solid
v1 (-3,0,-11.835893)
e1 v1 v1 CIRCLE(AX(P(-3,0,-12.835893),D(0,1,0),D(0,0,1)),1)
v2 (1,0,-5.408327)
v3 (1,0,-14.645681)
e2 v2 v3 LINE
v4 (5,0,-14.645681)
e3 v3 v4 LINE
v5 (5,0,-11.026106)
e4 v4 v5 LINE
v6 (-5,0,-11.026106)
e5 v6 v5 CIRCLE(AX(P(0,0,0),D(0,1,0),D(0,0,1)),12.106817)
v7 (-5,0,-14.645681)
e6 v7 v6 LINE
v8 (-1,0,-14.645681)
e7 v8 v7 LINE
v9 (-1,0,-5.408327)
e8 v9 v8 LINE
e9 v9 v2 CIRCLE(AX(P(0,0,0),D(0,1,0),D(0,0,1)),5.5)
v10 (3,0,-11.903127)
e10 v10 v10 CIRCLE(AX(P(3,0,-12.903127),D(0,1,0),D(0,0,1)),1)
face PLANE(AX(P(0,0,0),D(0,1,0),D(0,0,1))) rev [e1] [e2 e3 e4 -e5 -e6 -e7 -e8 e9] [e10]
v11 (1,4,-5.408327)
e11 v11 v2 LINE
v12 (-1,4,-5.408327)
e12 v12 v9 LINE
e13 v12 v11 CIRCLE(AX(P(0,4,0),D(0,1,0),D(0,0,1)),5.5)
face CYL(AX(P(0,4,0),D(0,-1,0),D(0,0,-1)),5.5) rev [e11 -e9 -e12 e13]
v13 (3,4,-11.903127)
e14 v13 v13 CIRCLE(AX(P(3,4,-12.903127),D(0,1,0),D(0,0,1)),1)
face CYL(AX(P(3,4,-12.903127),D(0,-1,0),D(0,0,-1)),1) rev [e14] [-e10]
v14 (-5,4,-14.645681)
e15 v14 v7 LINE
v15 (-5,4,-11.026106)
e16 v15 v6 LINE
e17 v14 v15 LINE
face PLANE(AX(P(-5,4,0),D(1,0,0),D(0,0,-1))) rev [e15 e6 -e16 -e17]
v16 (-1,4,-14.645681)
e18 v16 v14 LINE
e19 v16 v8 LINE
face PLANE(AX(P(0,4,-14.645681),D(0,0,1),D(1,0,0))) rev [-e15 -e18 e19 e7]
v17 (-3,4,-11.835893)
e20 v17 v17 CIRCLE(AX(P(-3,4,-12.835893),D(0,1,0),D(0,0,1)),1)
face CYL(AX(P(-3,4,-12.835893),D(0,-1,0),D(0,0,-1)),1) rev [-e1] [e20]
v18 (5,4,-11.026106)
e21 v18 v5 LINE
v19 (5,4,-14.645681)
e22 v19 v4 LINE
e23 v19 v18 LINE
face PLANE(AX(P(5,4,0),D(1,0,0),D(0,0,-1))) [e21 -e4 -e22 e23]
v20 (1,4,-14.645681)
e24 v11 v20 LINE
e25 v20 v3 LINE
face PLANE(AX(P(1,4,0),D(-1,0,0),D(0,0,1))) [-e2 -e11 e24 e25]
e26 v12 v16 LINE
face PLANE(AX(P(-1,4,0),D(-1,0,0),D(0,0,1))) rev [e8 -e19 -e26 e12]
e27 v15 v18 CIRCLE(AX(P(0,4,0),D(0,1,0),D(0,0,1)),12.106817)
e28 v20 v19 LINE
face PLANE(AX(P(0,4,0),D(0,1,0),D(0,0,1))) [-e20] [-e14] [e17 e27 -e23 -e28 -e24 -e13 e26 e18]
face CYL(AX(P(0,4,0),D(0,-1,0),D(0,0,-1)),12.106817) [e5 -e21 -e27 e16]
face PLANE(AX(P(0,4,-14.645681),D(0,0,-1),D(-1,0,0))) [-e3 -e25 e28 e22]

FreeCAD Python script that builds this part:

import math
import FreeCAD as App
import Part
import Sketcher
Q = App.Units.Quantity

doc = App.newDocument("Part")
params = doc.addObject("Spreadsheet::Sheet", "Params")
for row, (alias, value) in enumerate([
    ("sketch1_diameter", "2 mm"),
    ("sketch1_radius", "5.5 mm"),
    ("sketch1_width", "4 mm"),
    ("pad1_length", "4 mm"),
], start=1):
    params.set(f"A{row}", alias)
    params.set(f"B{row}", "=" + value)
    params.setAlias(f"B{row}", alias)

body = doc.addObject("PartDesign::Body", "Body")

# Sketch on XZ plane
sketch1 = body.newObject("Sketcher::SketchObject", "Sketch")
sketch1.AttachmentSupport = (doc.getObject("XZ_Plane"), [""])
sketch1.MapMode = "FlatFace"
sketch1.addGeometry([
    Part.LineSegment(App.Vector(-5, -14.6, 0), App.Vector(-5, -11, 0)),  # 0
    Part.ArcOfCircle(Part.Circle(App.Vector(0, 0, 0), App.Vector(0, 0, 1), 12.1), math.radians(-66), math.radians(246)),  # 1
    Part.LineSegment(App.Vector(5, -11, 0), App.Vector(5, -14.6, 0)),  # 2
    Part.LineSegment(App.Vector(5, -14.6, 0), App.Vector(1, -14.6, 0)),  # 3
    Part.LineSegment(App.Vector(1, -14.6, 0), App.Vector(1, -5.4, 0)),  # 4
    Part.ArcOfCircle(Part.Circle(App.Vector(0, 0, 0), App.Vector(0, 0, 1), 5.5), math.radians(-80), math.radians(260)),  # 5
    Part.LineSegment(App.Vector(-1, -5.4, 0), App.Vector(-1, -14.6, 0)),  # 6
    Part.LineSegment(App.Vector(-1, -14.6, 0), App.Vector(-5, -14.6, 0)),  # 7
    Part.Circle(App.Vector(-3, -12.8, 0), App.Vector(0, 0, 1), 1),  # 8
    Part.Circle(App.Vector(3, -12.9, 0), App.Vector(0, 0, 1), 1),  # 9
], False)
sketch1.addConstraint([
    Sketcher.Constraint("Coincident", 0, 2, 1, 2),
    Sketcher.Constraint("Coincident", 1, 1, 2, 1),
    Sketcher.Constraint("Coincident", 2, 2, 3, 1),
    Sketcher.Constraint("Coincident", 3, 2, 4, 1),
    Sketcher.Constraint("Coincident", 4, 2, 5, 1),
    Sketcher.Constraint("Coincident", 5, 2, 6, 1),
    Sketcher.Constraint("Coincident", 6, 2, 7, 1),
    Sketcher.Constraint("Coincident", 7, 2, 0, 1),
    Sketcher.Constraint("Vertical", 0),
    Sketcher.Constraint("Vertical", 2),
    Sketcher.Constraint("Horizontal", 3),
    Sketcher.Constraint("Vertical", 4),
    Sketcher.Constraint("Vertical", 6),
    Sketcher.Constraint("Horizontal", 7),
    Sketcher.Constraint("Coincident", 1, 3, -1, 1),
    Sketcher.Constraint("Coincident", 5, 3, -1, 1),
    Sketcher.Constraint("Equal", 8, 9),
    Sketcher.Constraint("Symmetric", 3, 2, 6, 2, -2),
    Sketcher.Constraint("Horizontal", 0, 2, 1, 1),
    Sketcher.Constraint("Diameter", 8, Q("2 mm")),
    Sketcher.Constraint("Radius", 5, Q("5.5 mm")),
    Sketcher.Constraint("DistanceX", 3, 2, 3, 1, Q("4 mm")),
    Sketcher.Constraint("DistanceX", 8, 3, -1, 1, Q("3 mm")),
    Sketcher.Constraint("DistanceX", -1, 1, 9, 3, Q("3 mm")),
    Sketcher.Constraint("DistanceX", 0, 2, -1, 1, Q("5 mm")),
    Sketcher.Constraint("Radius", 1, Q("12.106817 mm")),
    Sketcher.Constraint("DistanceY", 9, 3, 4, 2, Q("7.4948 mm")),
    Sketcher.Constraint("DistanceY", 0, 1, 0, 2, Q("3.619575 mm")),
    Sketcher.Constraint("DistanceY", 8, 3, -1, 1, Q("12.835893 mm")),
])
sketch1.setExpression("Constraints[19]", "Params.sketch1_diameter")
sketch1.setExpression("Constraints[20]", "Params.sketch1_radius")
sketch1.setExpression("Constraints[21]", "Params.sketch1_width")
pad1 = body.newObject("PartDesign::Pad", "Pad")
pad1.Profile = sketch1
pad1.setExpression("Length", "Params.pad1_length")
pad1.Reversed = True

doc.recompute()
